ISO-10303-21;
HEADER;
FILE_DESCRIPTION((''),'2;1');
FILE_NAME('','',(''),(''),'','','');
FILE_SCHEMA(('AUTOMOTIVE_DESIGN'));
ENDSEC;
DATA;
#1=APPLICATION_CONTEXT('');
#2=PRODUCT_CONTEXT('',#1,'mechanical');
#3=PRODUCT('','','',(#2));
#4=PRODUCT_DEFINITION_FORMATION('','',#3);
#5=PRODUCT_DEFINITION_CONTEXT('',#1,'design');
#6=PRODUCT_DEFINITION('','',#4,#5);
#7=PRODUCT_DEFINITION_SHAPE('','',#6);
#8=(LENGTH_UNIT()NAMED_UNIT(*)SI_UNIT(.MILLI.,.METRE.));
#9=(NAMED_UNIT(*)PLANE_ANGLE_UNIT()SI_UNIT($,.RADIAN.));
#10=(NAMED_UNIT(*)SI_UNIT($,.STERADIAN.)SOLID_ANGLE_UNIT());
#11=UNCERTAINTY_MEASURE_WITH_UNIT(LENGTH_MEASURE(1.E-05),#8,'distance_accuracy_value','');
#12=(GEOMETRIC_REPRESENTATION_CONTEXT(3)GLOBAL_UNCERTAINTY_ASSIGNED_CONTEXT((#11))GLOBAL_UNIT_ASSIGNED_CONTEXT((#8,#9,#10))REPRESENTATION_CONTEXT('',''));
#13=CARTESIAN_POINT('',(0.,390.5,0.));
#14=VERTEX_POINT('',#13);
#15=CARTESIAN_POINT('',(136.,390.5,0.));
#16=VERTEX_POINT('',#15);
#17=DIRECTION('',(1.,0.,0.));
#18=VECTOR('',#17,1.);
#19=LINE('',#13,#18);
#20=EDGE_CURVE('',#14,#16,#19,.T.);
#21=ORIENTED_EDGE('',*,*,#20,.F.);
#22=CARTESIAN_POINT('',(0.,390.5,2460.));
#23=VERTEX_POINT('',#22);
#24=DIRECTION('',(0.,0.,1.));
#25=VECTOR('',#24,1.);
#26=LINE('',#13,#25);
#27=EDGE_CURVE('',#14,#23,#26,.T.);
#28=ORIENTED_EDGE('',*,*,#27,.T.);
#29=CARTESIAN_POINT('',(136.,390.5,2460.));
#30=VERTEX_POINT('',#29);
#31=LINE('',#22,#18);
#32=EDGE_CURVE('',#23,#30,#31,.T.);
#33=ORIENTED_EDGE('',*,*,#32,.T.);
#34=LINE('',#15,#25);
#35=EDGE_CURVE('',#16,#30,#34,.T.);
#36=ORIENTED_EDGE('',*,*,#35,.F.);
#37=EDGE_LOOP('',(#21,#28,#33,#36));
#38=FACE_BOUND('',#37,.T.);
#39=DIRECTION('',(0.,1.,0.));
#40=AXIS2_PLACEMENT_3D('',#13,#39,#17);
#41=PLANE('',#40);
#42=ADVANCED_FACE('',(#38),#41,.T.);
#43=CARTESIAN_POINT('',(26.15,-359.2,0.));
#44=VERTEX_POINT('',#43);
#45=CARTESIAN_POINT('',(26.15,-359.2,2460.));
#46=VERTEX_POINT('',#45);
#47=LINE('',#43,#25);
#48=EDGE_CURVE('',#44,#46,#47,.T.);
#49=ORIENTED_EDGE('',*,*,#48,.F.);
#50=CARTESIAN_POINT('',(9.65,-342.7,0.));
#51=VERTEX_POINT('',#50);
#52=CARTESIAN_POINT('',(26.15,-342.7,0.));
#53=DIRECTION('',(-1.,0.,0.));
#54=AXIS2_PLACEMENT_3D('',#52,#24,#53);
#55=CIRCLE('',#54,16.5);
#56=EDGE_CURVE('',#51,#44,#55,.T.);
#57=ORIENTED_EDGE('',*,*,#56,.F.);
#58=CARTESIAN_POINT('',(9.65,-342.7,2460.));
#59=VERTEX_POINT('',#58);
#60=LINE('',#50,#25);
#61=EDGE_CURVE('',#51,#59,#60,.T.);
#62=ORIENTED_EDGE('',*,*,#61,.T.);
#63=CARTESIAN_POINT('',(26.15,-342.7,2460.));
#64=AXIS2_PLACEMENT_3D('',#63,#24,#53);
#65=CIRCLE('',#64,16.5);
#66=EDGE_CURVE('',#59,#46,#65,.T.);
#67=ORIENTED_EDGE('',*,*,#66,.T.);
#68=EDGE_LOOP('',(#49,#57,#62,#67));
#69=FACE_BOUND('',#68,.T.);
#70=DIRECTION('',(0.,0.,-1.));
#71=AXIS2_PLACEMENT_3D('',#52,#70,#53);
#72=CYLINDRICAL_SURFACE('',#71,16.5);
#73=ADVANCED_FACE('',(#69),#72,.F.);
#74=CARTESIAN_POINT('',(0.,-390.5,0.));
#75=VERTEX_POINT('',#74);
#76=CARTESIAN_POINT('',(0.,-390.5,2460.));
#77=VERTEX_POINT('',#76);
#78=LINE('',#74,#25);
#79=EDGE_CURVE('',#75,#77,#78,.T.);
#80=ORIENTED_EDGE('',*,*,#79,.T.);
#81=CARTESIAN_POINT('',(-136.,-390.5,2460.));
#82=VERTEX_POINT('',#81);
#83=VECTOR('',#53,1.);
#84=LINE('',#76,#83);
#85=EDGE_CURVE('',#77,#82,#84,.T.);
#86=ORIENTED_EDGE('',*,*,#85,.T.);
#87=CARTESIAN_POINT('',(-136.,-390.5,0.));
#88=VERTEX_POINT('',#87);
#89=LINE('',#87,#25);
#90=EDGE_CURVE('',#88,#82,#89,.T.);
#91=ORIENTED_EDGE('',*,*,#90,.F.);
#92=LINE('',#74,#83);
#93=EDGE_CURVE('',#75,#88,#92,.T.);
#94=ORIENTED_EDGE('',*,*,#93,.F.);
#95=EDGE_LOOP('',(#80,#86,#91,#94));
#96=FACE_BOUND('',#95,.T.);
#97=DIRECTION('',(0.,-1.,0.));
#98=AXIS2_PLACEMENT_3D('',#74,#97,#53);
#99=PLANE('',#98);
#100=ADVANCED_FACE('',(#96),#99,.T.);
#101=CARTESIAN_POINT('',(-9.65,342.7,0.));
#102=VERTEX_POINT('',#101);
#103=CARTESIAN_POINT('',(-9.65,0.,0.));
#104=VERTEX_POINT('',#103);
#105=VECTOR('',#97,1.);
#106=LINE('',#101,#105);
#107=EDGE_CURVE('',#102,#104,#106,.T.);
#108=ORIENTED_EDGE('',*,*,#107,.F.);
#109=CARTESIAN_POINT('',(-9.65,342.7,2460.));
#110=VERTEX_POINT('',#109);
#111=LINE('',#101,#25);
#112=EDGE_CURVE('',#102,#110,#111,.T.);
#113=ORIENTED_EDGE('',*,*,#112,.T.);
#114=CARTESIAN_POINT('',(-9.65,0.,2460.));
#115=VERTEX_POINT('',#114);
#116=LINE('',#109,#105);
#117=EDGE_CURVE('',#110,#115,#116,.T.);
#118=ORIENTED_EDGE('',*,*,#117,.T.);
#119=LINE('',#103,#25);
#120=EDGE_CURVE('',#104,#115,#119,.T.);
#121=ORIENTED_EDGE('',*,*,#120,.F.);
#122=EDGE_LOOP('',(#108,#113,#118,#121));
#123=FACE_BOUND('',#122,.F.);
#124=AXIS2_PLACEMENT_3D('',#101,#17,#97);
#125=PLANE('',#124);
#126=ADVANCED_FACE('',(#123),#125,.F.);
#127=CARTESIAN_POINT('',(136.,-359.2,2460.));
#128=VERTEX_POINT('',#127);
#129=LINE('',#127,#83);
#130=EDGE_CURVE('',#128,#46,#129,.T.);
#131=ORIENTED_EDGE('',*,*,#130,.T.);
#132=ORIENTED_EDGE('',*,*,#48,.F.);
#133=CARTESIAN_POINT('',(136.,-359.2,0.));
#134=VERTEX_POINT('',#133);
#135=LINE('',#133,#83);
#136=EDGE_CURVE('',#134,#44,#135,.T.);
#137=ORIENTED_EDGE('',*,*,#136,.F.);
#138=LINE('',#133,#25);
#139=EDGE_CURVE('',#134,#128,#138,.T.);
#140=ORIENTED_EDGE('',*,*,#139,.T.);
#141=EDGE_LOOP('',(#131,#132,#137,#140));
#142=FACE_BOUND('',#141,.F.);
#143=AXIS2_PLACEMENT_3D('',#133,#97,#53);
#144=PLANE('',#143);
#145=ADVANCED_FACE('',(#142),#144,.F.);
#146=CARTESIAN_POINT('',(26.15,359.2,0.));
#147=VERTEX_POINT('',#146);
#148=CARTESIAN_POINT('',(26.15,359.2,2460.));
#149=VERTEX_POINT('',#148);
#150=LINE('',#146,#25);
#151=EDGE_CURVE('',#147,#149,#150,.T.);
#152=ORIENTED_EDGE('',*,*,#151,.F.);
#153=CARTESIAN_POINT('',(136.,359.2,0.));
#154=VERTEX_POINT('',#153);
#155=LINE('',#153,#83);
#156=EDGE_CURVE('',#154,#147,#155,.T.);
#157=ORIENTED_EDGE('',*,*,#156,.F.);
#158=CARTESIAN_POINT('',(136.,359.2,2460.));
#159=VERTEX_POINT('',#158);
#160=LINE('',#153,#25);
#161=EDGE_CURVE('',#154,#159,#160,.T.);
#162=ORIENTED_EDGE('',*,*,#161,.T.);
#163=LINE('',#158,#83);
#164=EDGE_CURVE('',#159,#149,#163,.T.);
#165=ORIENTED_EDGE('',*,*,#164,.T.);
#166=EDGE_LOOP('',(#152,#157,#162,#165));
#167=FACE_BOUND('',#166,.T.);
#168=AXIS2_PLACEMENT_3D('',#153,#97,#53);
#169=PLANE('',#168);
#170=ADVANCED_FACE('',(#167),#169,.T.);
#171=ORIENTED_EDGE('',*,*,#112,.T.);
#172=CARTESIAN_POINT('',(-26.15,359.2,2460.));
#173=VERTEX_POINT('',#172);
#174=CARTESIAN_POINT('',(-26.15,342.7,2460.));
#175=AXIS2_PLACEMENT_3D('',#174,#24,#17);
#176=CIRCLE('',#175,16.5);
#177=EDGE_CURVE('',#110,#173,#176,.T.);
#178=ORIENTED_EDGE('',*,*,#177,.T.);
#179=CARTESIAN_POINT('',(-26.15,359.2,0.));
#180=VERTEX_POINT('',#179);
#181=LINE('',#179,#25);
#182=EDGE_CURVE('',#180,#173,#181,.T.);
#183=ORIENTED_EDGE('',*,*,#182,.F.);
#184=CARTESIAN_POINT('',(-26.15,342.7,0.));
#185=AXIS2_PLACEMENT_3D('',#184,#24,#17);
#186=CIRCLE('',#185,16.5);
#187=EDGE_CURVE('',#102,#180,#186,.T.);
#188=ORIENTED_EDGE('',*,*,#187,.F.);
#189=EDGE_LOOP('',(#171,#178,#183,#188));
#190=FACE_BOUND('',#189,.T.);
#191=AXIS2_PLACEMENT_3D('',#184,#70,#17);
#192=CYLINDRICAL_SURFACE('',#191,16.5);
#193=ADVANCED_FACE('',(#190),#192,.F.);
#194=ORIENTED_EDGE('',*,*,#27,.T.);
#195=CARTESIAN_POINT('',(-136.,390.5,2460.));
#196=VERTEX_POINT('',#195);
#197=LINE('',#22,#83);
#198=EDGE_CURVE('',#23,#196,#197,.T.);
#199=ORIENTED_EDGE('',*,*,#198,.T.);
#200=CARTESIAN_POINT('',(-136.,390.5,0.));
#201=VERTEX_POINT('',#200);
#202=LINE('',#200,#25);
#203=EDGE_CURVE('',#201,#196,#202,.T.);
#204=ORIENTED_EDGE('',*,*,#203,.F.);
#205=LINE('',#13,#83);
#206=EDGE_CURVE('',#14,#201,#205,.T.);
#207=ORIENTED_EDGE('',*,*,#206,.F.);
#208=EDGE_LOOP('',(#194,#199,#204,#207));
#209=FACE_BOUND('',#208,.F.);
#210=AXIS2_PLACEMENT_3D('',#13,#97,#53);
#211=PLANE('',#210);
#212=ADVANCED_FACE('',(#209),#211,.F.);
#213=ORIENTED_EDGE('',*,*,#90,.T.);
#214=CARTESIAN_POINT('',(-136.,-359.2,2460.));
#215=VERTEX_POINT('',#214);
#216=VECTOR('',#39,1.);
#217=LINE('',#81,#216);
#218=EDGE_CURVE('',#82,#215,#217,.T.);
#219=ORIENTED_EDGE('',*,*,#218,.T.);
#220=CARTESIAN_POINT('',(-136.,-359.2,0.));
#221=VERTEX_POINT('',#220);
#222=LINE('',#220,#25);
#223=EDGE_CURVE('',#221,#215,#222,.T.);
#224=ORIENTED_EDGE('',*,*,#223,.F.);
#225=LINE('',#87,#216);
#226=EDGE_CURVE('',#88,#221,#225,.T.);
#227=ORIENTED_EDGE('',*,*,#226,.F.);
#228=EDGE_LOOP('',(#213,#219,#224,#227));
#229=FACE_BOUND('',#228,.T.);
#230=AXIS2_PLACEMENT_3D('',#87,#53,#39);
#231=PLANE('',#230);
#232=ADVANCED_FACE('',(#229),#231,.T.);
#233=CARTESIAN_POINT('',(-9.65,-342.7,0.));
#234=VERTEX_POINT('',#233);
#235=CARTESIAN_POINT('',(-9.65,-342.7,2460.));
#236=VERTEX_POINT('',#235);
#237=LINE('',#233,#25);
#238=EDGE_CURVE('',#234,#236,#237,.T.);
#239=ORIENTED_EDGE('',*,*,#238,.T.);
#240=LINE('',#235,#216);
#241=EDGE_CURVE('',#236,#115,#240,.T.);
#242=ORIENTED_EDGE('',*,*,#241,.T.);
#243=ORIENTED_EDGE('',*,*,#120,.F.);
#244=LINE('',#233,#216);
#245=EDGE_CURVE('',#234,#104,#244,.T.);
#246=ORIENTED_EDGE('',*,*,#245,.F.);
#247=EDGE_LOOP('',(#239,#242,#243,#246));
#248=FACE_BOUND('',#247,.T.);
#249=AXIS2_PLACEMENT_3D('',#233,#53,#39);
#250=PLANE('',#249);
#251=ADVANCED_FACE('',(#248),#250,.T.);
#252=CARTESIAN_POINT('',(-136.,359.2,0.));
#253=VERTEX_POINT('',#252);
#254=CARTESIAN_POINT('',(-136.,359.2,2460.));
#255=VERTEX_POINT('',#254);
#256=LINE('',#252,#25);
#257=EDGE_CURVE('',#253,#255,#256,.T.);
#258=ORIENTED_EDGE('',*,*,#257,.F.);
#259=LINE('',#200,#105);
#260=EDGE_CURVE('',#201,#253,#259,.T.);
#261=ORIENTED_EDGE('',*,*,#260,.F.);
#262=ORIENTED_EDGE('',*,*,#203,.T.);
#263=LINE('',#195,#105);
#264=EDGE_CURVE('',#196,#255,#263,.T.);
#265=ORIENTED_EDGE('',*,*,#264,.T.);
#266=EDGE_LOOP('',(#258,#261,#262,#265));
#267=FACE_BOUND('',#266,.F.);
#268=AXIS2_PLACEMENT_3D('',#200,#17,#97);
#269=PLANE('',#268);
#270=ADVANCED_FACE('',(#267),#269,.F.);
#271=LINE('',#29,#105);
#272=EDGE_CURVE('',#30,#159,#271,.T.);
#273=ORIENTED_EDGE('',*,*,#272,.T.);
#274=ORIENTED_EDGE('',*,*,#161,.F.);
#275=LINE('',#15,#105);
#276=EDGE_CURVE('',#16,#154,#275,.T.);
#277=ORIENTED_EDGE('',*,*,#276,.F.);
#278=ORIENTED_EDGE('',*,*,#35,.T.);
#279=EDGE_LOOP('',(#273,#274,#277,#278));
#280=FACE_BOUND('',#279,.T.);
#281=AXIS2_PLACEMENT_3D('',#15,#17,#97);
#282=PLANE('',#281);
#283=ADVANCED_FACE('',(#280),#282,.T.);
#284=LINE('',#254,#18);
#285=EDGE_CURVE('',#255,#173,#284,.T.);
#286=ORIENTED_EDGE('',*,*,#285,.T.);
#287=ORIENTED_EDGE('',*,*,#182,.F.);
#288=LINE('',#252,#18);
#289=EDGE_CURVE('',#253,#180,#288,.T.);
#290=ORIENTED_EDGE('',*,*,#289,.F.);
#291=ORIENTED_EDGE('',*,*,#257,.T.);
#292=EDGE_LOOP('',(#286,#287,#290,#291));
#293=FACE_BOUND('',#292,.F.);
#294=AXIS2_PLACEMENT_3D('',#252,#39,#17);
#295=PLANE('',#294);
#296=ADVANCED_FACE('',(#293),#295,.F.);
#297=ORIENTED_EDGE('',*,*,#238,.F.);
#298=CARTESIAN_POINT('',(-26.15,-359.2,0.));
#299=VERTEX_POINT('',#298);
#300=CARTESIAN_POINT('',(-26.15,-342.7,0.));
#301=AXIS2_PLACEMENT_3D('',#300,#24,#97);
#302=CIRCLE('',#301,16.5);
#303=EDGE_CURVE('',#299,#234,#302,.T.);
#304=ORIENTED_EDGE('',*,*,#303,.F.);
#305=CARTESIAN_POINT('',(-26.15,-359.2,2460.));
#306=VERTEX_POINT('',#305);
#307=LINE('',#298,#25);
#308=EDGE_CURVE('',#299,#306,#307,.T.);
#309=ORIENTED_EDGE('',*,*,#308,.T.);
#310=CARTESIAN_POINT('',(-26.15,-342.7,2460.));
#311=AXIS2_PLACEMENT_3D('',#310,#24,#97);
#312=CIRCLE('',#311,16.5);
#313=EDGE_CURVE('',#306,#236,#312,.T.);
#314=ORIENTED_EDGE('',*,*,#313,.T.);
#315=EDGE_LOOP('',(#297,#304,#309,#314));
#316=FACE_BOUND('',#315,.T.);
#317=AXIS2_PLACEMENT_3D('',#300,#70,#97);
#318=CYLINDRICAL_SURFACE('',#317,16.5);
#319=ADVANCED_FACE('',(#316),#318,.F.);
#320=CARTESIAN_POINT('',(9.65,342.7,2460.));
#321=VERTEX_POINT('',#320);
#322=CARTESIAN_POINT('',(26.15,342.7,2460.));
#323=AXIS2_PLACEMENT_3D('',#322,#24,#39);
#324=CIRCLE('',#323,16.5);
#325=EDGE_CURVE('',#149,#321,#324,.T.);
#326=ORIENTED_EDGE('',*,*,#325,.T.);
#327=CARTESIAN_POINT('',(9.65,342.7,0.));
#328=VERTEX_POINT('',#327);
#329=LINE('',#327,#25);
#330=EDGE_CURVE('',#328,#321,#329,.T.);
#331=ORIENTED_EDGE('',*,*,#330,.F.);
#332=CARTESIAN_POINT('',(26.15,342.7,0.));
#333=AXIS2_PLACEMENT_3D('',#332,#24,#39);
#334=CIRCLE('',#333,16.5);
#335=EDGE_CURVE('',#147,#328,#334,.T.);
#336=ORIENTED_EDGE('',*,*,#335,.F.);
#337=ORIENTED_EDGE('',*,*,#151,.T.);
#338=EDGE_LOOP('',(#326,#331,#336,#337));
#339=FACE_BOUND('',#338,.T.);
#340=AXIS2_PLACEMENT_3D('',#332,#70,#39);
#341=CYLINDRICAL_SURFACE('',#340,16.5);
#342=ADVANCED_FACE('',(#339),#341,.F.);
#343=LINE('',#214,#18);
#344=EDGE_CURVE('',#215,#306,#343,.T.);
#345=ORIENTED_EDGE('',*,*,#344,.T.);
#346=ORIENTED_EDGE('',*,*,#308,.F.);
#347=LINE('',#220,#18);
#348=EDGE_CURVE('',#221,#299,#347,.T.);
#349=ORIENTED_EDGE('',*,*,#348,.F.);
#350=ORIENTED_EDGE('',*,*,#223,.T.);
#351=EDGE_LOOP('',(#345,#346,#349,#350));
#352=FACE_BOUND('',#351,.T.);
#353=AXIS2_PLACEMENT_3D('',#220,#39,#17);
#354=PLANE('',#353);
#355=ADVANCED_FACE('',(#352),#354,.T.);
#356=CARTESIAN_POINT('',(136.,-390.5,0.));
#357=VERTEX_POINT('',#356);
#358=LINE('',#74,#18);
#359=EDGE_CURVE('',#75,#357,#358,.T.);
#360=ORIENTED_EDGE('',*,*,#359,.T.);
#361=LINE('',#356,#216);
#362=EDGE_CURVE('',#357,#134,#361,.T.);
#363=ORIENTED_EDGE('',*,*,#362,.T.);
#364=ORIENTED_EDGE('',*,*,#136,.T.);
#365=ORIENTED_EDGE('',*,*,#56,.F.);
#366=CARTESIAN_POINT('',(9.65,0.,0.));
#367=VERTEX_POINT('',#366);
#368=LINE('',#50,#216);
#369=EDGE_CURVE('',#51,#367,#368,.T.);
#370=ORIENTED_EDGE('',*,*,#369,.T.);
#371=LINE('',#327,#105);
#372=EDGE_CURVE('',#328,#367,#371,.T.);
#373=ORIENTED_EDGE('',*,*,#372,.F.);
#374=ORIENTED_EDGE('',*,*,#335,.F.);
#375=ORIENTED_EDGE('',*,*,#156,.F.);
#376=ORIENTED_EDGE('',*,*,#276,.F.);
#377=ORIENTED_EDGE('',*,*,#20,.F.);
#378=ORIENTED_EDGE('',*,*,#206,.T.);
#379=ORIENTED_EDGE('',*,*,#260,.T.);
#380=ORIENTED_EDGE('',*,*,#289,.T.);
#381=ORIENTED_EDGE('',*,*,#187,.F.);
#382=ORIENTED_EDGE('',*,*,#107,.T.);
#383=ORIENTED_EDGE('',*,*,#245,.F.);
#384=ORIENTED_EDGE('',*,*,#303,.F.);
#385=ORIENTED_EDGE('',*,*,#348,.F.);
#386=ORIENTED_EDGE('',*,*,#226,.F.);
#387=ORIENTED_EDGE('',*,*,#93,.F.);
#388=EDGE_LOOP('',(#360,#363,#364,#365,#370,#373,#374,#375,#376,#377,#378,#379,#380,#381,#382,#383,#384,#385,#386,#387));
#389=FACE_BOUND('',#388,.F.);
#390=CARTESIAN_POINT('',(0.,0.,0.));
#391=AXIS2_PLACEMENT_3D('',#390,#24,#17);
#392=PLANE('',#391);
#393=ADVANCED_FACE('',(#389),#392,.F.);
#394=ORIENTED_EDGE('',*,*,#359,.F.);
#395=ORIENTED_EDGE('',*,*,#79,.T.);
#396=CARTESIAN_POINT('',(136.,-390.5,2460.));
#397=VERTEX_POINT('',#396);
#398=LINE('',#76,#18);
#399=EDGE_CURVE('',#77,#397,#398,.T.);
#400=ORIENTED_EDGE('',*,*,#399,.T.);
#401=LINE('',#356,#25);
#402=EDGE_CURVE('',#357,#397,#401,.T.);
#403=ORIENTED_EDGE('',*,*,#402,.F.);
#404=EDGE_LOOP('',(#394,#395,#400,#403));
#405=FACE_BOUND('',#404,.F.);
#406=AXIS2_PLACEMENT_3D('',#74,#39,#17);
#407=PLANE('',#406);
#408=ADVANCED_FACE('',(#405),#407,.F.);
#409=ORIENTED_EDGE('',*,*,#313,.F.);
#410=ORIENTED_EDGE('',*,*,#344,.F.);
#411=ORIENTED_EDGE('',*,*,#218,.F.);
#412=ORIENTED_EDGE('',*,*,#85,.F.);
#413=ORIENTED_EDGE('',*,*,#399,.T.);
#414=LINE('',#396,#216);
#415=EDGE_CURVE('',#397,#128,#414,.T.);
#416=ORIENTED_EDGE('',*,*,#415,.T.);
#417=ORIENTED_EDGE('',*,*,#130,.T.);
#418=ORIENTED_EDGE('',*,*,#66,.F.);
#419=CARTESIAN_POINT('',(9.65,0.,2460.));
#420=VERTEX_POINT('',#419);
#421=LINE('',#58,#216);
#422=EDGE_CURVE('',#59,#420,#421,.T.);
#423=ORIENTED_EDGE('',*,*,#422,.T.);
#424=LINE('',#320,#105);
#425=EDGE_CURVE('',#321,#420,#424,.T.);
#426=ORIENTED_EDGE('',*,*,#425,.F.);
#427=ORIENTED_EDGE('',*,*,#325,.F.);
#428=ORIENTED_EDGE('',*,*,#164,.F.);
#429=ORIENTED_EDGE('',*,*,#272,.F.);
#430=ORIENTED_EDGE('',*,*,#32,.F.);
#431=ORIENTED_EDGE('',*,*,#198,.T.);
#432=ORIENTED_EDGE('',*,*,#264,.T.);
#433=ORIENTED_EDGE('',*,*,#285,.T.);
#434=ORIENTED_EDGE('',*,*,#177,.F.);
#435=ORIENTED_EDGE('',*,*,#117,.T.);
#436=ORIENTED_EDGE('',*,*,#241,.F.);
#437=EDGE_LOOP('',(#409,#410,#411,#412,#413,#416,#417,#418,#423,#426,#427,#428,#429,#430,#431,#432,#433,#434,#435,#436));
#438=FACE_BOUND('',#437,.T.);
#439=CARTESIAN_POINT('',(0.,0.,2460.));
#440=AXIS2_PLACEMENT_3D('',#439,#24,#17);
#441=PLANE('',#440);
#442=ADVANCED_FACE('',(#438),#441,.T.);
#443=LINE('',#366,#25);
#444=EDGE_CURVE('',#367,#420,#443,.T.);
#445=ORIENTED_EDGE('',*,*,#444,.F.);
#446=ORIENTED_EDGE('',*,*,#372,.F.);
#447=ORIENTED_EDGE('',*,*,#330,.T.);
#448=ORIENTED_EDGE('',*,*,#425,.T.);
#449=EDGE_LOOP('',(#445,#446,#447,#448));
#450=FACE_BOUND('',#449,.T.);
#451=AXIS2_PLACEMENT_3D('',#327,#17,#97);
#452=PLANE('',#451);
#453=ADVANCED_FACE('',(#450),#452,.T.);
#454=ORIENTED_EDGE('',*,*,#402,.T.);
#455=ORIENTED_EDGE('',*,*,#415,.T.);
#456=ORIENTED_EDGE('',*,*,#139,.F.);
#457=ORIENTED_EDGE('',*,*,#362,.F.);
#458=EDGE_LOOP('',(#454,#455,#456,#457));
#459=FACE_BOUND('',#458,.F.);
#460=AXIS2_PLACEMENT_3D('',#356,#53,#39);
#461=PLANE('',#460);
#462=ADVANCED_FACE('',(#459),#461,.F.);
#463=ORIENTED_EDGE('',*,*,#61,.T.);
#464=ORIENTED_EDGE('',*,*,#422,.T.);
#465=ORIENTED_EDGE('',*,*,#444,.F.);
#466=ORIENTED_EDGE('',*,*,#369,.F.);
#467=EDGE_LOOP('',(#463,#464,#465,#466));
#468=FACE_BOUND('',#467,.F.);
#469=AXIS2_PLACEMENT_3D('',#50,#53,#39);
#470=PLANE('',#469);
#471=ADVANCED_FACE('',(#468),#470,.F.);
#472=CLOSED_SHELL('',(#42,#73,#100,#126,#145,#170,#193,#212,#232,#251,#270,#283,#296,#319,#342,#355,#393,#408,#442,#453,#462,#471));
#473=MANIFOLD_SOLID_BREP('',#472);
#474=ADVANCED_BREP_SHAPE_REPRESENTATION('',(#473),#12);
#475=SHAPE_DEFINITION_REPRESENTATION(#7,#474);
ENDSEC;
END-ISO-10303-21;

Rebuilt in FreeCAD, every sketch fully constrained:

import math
import FreeCAD as App
import Part
import Sketcher
from FreeCAD import Vector

doc = App.newDocument("Part")
body = doc.addObject("PartDesign::Body", "Body")

# Sketch on XY plane
sketch1 = body.newObject("Sketcher::SketchObject", "Sketch")
sketch1.AttachmentSupport = (doc.getObject("XY_Plane"), [""])
sketch1.MapMode = "FlatFace"
sketch1.addGeometry(Part.LineSegment(Vector(-136, -359, 0), Vector(-136, -390, 0)), False)
sketch1.addGeometry(Part.LineSegment(Vector(-136, -390, 0), Vector(136, -390, 0)), False)
sketch1.addGeometry(Part.LineSegment(Vector(136, -390, 0), Vector(136, -359, 0)), False)
sketch1.addGeometry(Part.LineSegment(Vector(136, -359, 0), Vector(26, -359, 0)), False)
sketch1.addGeometry(Part.ArcOfCircle(Part.Circle(Vector(26, -343, 0), Vector(0, 0, 1), 16), math.radians(180), math.radians(270)), False)
sketch1.addGeometry(Part.LineSegment(Vector(10, -343, 0), Vector(10, 343, 0)), False)
sketch1.addGeometry(Part.ArcOfCircle(Part.Circle(Vector(26, 343, 0), Vector(0, 0, 1), 16), math.radians(90), math.radians(180)), False)
sketch1.addGeometry(Part.LineSegment(Vector(26, 359, 0), Vector(136, 359, 0)), False)
sketch1.addGeometry(Part.LineSegment(Vector(136, 359, 0), Vector(136, 390, 0)), False)
sketch1.addGeometry(Part.LineSegment(Vector(136, 390, 0), Vector(-136, 390, 0)), False)
sketch1.addGeometry(Part.LineSegment(Vector(-136, 390, 0), Vector(-136, 359, 0)), False)
sketch1.addGeometry(Part.LineSegment(Vector(-136, 359, 0), Vector(-26, 359, 0)), False)
sketch1.addGeometry(Part.ArcOfCircle(Part.Circle(Vector(-26, 343, 0), Vector(0, 0, 1), 16), math.radians(0), math.radians(90)), False)
sketch1.addGeometry(Part.LineSegment(Vector(-10, 343, 0), Vector(-10, -343, 0)), False)
sketch1.addGeometry(Part.ArcOfCircle(Part.Circle(Vector(-26, -343, 0), Vector(0, 0, 1), 16), math.radians(-90), math.radians(0)), False)
sketch1.addGeometry(Part.LineSegment(Vector(-26, -359, 0), Vector(-136, -359, 0)), False)
sketch1.addConstraint(Sketcher.Constraint("Coincident", 0, 2, 1, 1))
sketch1.addConstraint(Sketcher.Constraint("Coincident", 1, 2, 2, 1))
sketch1.addConstraint(Sketcher.Constraint("Coincident", 2, 2, 3, 1))
sketch1.addConstraint(Sketcher.Constraint("Tangent", 3, 2, 4, 2))
sketch1.addConstraint(Sketcher.Constraint("Tangent", 4, 1, 5, 1))
sketch1.addConstraint(Sketcher.Constraint("Tangent", 5, 2, 6, 2))
sketch1.addConstraint(Sketcher.Constraint("Tangent", 6, 1, 7, 1))
sketch1.addConstraint(Sketcher.Constraint("Coincident", 7, 2, 8, 1))
sketch1.addConstraint(Sketcher.Constraint("Coincident", 8, 2, 9, 1))
sketch1.addConstraint(Sketcher.Constraint("Coincident", 9, 2, 10, 1))
sketch1.addConstraint(Sketcher.Constraint("Coincident", 10, 2, 11, 1))
sketch1.addConstraint(Sketcher.Constraint("Tangent", 11, 2, 12, 2))
sketch1.addConstraint(Sketcher.Constraint("Tangent", 12, 1, 13, 1))
sketch1.addConstraint(Sketcher.Constraint("Tangent", 13, 2, 14, 2))
sketch1.addConstraint(Sketcher.Constraint("Tangent", 14, 1, 15, 1))
sketch1.addConstraint(Sketcher.Constraint("Coincident", 15, 2, 0, 1))
sketch1.addConstraint(Sketcher.Constraint("Vertical", 0))
sketch1.addConstraint(Sketcher.Constraint("Horizontal", 1))
sketch1.addConstraint(Sketcher.Constraint("Vertical", 2))
sketch1.addConstraint(Sketcher.Constraint("Horizontal", 3))
sketch1.addConstraint(Sketcher.Constraint("Vertical", 5))
sketch1.addConstraint(Sketcher.Constraint("Horizontal", 7))
sketch1.addConstraint(Sketcher.Constraint("Vertical", 8))
sketch1.addConstraint(Sketcher.Constraint("Horizontal", 9))
sketch1.addConstraint(Sketcher.Constraint("Vertical", 10))
sketch1.addConstraint(Sketcher.Constraint("Horizontal", 11))
sketch1.addConstraint(Sketcher.Constraint("Vertical", 13))
sketch1.addConstraint(Sketcher.Constraint("Horizontal", 15))
sketch1.addConstraint(Sketcher.Constraint("Equal", 4, 6))
sketch1.addConstraint(Sketcher.Constraint("Equal", 6, 12))
sketch1.addConstraint(Sketcher.Constraint("Equal", 12, 14))
sketch1.addConstraint(Sketcher.Constraint("Symmetric", 4, 3, 12, 3, -1, 1))
sketch1.addConstraint(Sketcher.Constraint("Symmetric", 0, 2, 8, 2, -1, 1))
sketch1.addConstraint(Sketcher.Constraint("Symmetric", 7, 2, 10, 2, -2))
sketch1.addConstraint(Sketcher.Constraint("Symmetric", 2, 2, 15, 2, -2))
sketch1.addConstraint(Sketcher.Constraint("Radius", 4, 16.5))
sketch1.addConstraint(Sketcher.Constraint("DistanceY", 0, 2, 0, 1, 31.3))
sketch1.addConstraint(Sketcher.Constraint("DistanceX", 0, 2, -1, 1, 136.0))
sketch1.addConstraint(Sketcher.Constraint("DistanceY", 0, 2, -1, 1, 390.5))
sketch1.addConstraint(Sketcher.Constraint("DistanceX", -1, 1, 4, 1, 9.65))
pad1 = body.newObject("PartDesign::Pad", "Pad")
pad1.Profile = sketch1
pad1.Length = 2460

doc.recompute()
